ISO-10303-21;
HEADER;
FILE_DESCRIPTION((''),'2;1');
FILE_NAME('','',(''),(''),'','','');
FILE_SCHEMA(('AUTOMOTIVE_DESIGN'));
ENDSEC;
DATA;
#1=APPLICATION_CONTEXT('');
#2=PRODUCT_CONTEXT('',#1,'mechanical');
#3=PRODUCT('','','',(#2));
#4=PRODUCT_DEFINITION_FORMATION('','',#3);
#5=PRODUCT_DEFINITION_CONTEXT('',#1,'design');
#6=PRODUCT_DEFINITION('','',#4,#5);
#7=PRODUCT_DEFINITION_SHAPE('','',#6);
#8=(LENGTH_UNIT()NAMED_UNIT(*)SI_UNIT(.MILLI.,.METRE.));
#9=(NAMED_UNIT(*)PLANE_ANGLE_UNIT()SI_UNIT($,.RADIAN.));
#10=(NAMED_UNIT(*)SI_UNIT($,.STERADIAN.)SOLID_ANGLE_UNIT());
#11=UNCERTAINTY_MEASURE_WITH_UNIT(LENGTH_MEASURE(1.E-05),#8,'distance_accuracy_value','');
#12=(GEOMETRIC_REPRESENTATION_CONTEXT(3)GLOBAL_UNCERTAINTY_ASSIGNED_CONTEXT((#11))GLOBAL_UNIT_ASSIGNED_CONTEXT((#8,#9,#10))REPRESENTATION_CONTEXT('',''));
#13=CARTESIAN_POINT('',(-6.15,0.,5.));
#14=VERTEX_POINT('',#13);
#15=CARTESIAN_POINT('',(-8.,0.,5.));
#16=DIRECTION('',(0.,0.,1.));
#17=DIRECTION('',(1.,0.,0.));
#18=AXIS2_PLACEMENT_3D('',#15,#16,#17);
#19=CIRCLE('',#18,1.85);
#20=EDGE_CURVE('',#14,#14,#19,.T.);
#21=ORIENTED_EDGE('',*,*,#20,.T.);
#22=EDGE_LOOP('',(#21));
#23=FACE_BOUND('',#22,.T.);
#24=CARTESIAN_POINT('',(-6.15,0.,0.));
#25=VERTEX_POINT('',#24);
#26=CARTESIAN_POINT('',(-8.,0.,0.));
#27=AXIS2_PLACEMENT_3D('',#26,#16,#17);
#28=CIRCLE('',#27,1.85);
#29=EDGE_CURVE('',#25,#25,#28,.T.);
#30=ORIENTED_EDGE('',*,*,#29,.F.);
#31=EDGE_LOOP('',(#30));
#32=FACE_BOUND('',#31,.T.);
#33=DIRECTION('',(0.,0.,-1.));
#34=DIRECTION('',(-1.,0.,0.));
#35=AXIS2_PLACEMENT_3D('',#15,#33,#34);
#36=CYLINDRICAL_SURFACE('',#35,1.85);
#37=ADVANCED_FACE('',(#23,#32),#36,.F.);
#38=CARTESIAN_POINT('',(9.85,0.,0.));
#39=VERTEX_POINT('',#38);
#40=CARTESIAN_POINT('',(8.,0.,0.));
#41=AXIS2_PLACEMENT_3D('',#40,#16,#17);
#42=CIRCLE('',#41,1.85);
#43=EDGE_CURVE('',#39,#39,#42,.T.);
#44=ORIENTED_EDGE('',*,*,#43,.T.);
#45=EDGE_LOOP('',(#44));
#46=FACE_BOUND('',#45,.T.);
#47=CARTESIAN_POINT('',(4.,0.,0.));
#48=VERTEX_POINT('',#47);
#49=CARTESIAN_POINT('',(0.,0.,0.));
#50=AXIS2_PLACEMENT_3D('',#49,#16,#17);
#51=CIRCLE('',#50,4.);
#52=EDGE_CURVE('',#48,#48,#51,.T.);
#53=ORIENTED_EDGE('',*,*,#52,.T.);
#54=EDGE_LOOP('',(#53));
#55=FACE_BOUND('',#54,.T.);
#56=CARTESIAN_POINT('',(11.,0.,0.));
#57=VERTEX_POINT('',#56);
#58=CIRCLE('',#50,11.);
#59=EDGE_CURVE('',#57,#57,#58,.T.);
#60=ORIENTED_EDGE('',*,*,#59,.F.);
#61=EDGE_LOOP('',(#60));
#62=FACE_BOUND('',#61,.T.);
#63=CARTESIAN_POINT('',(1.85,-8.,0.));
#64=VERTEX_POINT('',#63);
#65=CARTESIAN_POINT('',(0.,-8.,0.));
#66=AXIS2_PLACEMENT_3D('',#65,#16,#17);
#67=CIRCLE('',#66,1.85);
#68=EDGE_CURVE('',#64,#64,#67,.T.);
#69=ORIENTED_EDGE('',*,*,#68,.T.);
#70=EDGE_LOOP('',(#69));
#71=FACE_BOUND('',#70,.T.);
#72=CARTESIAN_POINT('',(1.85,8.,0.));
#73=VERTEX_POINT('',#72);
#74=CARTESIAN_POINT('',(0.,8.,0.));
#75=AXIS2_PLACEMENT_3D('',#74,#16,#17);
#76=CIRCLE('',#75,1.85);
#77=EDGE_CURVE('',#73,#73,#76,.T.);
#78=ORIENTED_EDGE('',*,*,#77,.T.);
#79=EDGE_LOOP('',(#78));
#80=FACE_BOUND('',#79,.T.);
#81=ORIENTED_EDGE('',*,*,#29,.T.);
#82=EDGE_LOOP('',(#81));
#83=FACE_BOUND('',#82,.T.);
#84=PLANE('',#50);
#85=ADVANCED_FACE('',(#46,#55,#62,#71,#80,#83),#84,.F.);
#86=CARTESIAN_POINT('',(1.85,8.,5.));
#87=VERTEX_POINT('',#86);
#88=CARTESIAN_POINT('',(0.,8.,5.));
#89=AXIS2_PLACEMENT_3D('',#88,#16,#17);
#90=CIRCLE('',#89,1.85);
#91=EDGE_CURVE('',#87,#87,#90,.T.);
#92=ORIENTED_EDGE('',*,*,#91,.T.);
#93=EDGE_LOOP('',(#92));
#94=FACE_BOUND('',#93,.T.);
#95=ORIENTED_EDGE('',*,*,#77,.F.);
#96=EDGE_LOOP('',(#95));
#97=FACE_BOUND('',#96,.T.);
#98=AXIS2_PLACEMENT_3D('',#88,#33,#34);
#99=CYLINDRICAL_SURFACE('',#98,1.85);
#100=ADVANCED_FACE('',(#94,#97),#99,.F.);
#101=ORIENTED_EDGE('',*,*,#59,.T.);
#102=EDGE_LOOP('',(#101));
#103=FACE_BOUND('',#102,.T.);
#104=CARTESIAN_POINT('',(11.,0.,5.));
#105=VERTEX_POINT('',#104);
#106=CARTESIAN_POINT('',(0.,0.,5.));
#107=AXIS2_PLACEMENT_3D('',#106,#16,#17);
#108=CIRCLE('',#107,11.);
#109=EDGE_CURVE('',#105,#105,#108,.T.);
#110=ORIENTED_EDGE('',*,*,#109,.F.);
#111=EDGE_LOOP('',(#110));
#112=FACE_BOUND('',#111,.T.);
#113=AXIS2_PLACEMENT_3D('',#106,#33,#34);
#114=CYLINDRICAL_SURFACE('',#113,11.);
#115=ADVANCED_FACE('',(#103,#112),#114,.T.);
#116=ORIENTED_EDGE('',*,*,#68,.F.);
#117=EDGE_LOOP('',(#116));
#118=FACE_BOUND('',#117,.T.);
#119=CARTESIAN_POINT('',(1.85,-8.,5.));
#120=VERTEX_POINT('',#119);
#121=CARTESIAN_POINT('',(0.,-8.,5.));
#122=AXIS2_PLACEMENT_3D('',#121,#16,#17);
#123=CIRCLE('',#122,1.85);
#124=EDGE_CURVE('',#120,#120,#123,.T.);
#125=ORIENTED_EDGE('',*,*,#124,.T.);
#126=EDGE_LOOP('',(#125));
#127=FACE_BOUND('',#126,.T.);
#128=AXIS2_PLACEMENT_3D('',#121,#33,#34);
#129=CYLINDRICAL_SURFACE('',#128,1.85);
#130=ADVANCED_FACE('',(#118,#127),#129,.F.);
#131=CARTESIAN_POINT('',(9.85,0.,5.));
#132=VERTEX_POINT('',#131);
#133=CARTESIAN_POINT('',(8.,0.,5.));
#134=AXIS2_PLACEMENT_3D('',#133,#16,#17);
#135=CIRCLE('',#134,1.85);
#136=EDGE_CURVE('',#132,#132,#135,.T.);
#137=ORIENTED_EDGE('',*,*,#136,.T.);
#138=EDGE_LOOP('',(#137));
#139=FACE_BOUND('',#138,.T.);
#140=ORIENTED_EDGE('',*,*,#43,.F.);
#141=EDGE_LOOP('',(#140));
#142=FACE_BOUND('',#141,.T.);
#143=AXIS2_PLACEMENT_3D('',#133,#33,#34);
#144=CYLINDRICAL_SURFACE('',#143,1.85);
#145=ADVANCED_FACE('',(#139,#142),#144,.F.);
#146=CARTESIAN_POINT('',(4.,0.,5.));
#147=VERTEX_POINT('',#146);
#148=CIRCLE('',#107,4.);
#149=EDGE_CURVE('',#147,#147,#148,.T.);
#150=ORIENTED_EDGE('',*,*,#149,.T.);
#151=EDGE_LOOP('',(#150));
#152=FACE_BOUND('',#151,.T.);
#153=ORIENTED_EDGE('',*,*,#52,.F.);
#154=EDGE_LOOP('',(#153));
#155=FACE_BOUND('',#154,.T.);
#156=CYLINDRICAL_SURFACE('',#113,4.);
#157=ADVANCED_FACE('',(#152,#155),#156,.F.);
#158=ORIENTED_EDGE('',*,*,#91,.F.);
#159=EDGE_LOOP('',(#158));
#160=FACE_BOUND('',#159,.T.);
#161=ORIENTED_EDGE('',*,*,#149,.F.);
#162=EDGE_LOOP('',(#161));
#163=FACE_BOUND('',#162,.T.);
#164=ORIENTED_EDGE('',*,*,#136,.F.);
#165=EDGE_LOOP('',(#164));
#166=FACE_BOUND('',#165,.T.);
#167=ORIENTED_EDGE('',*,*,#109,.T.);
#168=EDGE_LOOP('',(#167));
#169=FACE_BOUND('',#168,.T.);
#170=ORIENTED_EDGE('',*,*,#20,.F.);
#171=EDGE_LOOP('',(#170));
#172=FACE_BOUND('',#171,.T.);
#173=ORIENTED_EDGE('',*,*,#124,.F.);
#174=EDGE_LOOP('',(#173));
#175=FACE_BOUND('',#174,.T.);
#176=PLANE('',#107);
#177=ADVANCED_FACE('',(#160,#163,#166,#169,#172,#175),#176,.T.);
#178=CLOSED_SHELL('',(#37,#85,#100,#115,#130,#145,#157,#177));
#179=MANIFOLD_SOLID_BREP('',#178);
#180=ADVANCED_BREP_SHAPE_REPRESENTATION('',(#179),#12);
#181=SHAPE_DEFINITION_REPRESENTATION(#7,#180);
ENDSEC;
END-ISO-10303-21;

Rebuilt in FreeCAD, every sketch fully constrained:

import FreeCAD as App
import Part
import Sketcher
from FreeCAD import Vector

doc = App.newDocument("Part")
body = doc.addObject("PartDesign::Body", "Body")

# Sketch on XY plane
sketch1 = doc.addObject("Sketcher::SketchObject", "Sketch")
body.addObject(sketch1)
sketch1.AttachmentSupport = (doc.XY_Plane, [""])
sketch1.MapMode = "FlatFace"
sketch1.addGeometry([
    Part.Circle(Vector(0, 0, 0), Vector(0, 0, 1), 11),  # 0
    Part.Circle(Vector(0, -8, 0), Vector(0, 0, 1), 1.9),  # 1
    Part.Circle(Vector(-8, 0, 0), Vector(0, 0, 1), 1.9),  # 2
    Part.Circle(Vector(0, 0, 0), Vector(0, 0, 1), 4),  # 3
    Part.Circle(Vector(8, 0, 0), Vector(0, 0, 1), 1.9),  # 4
    Part.Circle(Vector(0, 8, 0), Vector(0, 0, 1), 1.9),  # 5
], False)
sketch1.addConstraint([
    Sketcher.Constraint("Coincident", 0, 3, -1, 1),
    Sketcher.Constraint("Coincident", 3, 3, -1, 1),
    Sketcher.Constraint("Equal", 1, 2),
    Sketcher.Constraint("Equal", 2, 4),
    Sketcher.Constraint("Equal", 4, 5),
    Sketcher.Constraint("Symmetric", 2, 3, 4, 3, -1, 1),
    Sketcher.Constraint("Symmetric", 1, 3, 5, 3, -1, 1),
    Sketcher.Constraint("PointOnObject", 1, 3, -2),
    Sketcher.Constraint("PointOnObject", 2, 3, -1),
    Sketcher.Constraint("Diameter", 0, 22.0),
    Sketcher.Constraint("Diameter", 3, 8.0),
    Sketcher.Constraint("Diameter", 1, 3.7),
    Sketcher.Constraint("DistanceY", 1, 3, -1, 1, 8.0),
    Sketcher.Constraint("DistanceX", 2, 3, -1, 1, 8.0),
])
pad1 = doc.addObject("PartDesign::Pad", "Pad")
body.addObject(pad1)
pad1.Profile = sketch1
pad1.Length = 5

doc.recompute()
